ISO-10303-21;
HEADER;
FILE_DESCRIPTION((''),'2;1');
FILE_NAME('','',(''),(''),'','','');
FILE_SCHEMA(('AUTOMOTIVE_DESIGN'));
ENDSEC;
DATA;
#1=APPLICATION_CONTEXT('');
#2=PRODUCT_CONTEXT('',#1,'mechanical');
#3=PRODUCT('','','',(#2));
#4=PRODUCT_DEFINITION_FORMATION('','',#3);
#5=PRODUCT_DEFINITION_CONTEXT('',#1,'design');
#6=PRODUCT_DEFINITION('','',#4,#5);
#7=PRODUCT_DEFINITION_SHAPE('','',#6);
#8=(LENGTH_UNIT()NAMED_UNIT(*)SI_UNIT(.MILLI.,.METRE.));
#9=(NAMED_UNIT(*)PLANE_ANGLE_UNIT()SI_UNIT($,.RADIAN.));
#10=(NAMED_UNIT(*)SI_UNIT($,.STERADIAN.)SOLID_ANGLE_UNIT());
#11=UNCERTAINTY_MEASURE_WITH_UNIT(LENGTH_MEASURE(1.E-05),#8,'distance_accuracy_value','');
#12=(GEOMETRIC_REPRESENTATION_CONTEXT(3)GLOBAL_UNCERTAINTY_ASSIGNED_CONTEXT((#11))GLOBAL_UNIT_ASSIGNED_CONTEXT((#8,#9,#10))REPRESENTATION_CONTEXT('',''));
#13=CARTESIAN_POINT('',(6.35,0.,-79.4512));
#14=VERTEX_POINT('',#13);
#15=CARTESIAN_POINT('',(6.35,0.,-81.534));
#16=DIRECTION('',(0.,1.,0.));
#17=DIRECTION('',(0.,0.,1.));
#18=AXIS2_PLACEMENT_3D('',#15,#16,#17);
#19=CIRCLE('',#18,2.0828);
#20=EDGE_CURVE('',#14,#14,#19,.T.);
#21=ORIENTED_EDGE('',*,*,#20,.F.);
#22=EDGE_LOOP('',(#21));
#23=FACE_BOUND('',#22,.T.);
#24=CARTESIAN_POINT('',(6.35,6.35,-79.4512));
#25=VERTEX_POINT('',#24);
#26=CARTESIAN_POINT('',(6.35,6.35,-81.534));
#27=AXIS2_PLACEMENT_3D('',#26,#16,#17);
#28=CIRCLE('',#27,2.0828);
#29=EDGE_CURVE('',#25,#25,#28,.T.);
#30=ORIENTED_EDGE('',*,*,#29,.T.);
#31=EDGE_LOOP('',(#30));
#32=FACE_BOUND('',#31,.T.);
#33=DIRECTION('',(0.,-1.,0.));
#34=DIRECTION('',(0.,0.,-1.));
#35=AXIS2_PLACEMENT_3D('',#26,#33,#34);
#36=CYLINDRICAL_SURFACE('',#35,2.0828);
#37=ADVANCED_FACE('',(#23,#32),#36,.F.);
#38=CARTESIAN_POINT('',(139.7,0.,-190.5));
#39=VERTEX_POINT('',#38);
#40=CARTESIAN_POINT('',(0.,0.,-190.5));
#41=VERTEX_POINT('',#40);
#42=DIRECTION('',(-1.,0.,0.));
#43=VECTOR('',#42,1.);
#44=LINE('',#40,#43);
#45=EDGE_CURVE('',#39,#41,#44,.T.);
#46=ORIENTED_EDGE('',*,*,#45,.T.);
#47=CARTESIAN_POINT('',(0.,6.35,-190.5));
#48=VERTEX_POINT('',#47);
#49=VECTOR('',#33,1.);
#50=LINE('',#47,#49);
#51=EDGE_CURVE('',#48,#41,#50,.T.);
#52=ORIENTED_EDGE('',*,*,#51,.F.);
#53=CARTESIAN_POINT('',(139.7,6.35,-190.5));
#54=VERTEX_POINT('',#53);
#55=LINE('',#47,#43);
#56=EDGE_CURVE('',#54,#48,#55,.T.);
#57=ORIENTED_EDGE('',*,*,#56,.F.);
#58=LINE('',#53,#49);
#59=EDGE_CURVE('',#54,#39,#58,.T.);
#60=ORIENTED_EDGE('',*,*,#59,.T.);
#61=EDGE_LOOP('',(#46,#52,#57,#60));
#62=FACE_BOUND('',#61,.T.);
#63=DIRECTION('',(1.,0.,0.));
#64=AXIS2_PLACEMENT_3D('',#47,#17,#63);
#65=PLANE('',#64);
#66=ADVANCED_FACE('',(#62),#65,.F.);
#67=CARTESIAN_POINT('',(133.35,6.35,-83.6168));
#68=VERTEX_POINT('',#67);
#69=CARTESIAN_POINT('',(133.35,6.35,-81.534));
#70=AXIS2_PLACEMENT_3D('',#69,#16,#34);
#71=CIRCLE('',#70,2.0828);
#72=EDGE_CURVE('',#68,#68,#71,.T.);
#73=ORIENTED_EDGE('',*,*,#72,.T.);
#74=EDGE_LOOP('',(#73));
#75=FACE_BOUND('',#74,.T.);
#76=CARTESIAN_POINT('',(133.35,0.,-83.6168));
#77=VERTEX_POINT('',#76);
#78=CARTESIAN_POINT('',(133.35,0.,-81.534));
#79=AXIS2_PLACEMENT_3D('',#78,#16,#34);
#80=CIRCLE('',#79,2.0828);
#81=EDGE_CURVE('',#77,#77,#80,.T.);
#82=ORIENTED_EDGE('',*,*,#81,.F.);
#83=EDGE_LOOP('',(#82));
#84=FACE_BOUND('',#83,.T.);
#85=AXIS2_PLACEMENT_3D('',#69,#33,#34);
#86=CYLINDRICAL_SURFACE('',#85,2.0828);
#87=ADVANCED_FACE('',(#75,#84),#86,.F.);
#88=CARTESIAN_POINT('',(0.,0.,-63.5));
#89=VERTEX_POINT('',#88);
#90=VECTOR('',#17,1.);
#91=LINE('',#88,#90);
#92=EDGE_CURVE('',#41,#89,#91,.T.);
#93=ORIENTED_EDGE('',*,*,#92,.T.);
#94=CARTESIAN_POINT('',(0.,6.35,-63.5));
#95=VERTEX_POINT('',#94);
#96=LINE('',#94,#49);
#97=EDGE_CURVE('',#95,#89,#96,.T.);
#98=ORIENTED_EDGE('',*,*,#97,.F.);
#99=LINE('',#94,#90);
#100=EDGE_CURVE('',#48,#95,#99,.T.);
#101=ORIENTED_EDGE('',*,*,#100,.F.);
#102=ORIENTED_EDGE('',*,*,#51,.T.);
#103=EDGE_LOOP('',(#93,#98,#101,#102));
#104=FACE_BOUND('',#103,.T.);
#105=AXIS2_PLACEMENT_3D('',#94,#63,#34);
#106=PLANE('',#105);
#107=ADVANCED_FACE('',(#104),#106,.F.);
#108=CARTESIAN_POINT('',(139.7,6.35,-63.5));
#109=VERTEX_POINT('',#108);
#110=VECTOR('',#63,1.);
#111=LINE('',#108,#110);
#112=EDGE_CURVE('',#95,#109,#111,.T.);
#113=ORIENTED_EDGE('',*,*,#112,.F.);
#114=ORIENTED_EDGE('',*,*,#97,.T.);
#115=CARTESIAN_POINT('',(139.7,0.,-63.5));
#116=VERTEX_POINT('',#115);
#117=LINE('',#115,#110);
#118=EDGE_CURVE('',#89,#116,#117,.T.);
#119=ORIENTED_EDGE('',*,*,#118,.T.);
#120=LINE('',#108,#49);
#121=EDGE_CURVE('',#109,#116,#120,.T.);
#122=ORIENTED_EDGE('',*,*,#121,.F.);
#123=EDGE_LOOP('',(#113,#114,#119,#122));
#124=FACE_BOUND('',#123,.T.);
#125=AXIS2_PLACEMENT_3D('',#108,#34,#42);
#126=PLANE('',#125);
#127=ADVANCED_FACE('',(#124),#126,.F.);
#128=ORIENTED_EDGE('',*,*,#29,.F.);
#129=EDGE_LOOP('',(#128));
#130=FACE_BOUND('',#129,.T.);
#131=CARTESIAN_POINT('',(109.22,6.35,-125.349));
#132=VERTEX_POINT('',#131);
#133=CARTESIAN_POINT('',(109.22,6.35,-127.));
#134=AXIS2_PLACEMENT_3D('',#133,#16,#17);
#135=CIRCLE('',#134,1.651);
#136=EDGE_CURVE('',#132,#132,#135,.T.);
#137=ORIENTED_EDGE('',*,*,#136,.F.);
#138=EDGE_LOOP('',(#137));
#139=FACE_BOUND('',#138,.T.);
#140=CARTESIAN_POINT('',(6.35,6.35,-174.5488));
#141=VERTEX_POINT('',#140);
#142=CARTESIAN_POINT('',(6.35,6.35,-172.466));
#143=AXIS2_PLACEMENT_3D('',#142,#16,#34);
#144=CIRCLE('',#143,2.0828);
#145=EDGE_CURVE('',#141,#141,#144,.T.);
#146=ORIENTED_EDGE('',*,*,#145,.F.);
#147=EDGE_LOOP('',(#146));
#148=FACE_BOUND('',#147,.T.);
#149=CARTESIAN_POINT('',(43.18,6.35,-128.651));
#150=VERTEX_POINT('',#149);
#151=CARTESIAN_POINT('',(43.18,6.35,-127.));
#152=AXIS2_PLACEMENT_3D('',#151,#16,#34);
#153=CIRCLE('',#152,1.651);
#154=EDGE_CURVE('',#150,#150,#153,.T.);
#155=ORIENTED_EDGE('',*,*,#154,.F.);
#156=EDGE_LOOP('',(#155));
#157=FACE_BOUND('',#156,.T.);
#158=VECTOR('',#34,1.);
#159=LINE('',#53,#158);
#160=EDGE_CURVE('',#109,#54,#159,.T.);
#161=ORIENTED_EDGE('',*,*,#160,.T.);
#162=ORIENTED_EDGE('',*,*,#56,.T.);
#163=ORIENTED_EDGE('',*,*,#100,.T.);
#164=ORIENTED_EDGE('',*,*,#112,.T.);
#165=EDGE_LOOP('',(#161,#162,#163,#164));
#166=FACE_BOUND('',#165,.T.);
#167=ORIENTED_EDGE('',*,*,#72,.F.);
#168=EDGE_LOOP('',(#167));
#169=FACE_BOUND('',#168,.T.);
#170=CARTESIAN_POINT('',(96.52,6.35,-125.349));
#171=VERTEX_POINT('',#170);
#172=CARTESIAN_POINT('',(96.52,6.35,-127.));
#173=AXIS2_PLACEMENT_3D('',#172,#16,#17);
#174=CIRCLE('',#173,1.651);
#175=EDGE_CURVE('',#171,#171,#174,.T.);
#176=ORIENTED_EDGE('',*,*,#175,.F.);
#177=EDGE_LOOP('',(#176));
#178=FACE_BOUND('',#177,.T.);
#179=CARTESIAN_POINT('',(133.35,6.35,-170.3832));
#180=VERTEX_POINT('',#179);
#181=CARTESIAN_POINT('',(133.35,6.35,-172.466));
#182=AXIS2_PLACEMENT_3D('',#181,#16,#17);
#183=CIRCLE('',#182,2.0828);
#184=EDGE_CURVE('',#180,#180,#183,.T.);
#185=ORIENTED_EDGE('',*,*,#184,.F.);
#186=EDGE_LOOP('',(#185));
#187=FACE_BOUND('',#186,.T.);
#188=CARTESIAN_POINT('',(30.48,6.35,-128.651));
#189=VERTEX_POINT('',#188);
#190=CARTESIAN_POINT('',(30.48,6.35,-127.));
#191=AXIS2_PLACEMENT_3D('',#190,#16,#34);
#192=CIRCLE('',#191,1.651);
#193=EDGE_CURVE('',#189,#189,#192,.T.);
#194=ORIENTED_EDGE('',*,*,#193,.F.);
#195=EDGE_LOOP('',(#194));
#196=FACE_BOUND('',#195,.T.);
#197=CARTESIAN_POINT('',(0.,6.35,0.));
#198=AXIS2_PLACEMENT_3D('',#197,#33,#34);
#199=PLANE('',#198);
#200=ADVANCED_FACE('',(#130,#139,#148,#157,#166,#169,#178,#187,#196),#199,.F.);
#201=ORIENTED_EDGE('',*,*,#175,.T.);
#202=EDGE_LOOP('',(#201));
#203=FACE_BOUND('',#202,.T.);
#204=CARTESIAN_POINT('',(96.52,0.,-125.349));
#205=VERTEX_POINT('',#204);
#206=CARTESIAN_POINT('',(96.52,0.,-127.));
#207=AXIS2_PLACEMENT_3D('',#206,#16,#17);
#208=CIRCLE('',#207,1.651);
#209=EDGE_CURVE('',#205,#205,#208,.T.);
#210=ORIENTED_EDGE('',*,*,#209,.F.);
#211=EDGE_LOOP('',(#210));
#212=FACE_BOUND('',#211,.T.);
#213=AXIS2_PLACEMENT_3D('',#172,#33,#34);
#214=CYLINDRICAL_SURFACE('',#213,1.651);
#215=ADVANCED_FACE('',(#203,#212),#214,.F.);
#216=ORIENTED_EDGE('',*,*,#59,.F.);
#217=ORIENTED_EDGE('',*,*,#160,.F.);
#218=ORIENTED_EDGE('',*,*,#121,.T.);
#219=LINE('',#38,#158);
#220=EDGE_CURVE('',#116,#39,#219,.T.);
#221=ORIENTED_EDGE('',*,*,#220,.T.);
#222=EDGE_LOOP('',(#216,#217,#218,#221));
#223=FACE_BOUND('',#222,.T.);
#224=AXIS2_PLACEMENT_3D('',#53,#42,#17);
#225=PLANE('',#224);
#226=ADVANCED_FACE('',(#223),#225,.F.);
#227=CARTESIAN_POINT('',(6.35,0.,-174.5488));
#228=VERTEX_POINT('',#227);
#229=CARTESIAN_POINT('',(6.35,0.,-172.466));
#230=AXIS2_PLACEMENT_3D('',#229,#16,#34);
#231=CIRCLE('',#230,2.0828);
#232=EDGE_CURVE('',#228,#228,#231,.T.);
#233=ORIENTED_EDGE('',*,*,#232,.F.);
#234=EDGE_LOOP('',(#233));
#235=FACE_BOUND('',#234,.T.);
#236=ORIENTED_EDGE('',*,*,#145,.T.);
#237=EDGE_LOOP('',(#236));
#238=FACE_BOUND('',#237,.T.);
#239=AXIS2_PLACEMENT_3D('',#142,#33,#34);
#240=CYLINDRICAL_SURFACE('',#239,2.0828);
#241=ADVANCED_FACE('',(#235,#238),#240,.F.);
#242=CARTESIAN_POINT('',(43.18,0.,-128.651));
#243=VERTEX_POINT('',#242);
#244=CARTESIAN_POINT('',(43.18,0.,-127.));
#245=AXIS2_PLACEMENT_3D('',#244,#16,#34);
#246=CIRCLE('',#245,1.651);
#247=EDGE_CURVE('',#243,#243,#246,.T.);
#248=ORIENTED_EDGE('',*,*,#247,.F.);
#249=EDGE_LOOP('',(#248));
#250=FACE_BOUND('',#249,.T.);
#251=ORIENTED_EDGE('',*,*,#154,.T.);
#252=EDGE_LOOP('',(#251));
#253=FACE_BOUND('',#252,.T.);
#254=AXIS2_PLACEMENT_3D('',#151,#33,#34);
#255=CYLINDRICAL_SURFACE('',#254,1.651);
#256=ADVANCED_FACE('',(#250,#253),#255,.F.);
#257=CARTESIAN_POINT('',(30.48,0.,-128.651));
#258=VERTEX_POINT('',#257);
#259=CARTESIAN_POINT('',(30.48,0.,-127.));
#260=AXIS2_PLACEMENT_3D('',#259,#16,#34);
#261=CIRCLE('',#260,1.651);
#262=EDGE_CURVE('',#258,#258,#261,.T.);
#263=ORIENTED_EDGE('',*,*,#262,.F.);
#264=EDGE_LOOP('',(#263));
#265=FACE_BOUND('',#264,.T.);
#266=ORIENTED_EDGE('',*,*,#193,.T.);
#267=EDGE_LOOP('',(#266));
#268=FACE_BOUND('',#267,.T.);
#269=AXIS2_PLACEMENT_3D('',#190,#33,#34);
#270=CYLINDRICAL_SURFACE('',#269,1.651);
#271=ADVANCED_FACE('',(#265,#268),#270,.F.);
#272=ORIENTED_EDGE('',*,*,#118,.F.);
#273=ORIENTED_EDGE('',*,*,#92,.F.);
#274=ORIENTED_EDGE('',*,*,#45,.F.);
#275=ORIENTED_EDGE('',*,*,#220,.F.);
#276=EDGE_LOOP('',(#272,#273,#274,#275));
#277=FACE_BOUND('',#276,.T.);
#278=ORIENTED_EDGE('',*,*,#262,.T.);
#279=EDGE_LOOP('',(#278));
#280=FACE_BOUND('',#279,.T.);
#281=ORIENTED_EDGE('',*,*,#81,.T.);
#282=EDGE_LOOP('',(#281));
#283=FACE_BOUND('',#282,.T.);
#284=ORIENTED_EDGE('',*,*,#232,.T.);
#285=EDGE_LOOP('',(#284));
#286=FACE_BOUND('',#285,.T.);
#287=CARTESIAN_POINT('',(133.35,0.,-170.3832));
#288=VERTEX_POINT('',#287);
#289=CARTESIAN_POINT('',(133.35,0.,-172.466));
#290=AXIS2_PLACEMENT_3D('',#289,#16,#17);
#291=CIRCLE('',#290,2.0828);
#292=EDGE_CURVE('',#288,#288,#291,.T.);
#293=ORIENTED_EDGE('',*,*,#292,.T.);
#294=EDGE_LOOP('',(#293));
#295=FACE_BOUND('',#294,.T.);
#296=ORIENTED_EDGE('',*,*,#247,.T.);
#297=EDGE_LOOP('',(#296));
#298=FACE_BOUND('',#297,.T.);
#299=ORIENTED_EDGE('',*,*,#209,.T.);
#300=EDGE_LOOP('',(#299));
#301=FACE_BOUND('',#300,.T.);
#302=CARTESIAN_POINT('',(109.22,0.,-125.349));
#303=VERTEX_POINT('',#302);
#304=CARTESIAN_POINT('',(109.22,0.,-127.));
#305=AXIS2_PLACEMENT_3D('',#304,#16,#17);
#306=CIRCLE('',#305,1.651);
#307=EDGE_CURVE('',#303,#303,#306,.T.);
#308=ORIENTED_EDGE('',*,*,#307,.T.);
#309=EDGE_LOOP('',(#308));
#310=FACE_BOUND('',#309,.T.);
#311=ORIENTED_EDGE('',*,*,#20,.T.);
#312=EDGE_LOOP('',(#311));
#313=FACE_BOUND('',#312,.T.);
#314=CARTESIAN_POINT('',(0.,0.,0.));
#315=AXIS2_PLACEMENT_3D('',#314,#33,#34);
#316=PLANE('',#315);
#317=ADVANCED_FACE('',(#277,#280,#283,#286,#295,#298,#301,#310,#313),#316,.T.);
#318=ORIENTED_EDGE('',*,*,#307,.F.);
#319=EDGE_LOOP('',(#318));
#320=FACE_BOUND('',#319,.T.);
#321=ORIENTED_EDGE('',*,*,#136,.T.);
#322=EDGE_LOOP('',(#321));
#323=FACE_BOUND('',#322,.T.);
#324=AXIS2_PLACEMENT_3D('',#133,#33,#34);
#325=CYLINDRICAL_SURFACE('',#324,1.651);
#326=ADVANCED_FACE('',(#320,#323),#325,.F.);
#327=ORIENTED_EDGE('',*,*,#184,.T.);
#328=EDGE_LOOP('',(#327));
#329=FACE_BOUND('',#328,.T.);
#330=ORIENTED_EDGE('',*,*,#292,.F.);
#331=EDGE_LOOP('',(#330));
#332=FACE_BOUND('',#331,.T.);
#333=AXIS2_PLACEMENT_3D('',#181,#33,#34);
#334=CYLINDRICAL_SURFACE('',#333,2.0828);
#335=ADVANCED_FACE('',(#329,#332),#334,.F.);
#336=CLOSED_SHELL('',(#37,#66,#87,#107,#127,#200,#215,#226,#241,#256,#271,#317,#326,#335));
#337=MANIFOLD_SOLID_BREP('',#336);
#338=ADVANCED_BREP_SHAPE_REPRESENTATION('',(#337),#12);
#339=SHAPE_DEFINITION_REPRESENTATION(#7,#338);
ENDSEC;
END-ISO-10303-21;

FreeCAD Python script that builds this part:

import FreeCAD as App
import Part
import Sketcher

V = App.Vector
Q = App.Units.Quantity

doc = App.newDocument("Part")
params = doc.addObject("Spreadsheet::Sheet", "Params")
for row, (alias, value) in enumerate([
    ("sketch1_diameter", "0.13 in"),
    ("sketch1_height", "5 in"),
    ("sketch1_diameter2", "0.164 in"),
    ("sketch1_width", "5.5 in"),
    ("pad1_length", "0.25 in"),
], start=1):
    params.set(f"A{row}", alias)
    params.set(f"B{row}", "=" + value)
    params.setAlias(f"B{row}", alias)

body = doc.addObject("PartDesign::Body", "Body")

sketch1 = body.newObject("Sketcher::SketchObject", "Sketch")
sketch1.AttachmentSupport = (doc.getObject("XZ_Plane"), [""])
sketch1.MapMode = "FlatFace"
sketch1.addGeometry([
    Part.LineSegment(V(0, -190.5, 0), V(0, -63.5, 0)),
    Part.LineSegment(V(0, -63.5, 0), V(139.7, -63.5, 0)),
    Part.LineSegment(V(139.7, -63.5, 0), V(139.7, -190.5, 0)),
    Part.LineSegment(V(139.7, -190.5, 0), V(0, -190.5, 0)),
    Part.Circle(V(6.3, -81.5, 0), V(0, 0, 1), 2.1),
    Part.Circle(V(30.5, -127, 0), V(0, 0, 1), 1.7),
    Part.Circle(V(43.2, -127, 0), V(0, 0, 1), 1.7),
    Part.Circle(V(133.3, -81.5, 0), V(0, 0, 1), 2.1),
    Part.Circle(V(96.5, -127, 0), V(0, 0, 1), 1.7),
    Part.Circle(V(109.2, -127, 0), V(0, 0, 1), 1.7),
    Part.Circle(V(6.3, -172.5, 0), V(0, 0, 1), 2.1),
    Part.Circle(V(133.3, -172.5, 0), V(0, 0, 1), 2.1),
], False)
sketch1.addConstraint([
    Sketcher.Constraint("Coincident", 0, 2, 1, 1),
    Sketcher.Constraint("Coincident", 1, 2, 2, 1),
    Sketcher.Constraint("Coincident", 2, 2, 3, 1),
    Sketcher.Constraint("Coincident", 3, 2, 0, 1),
    Sketcher.Constraint("Vertical", 0),
    Sketcher.Constraint("Horizontal", 1),
    Sketcher.Constraint("Vertical", 2),
    Sketcher.Constraint("Horizontal", 3),
    Sketcher.Constraint("Equal", 5, 6),
    Sketcher.Constraint("Equal", 4, 7),
    Sketcher.Constraint("Equal", 6, 8),
    Sketcher.Constraint("Equal", 8, 9),
    Sketcher.Constraint("Equal", 7, 10),
    Sketcher.Constraint("Equal", 10, 11),
    Sketcher.Constraint("PointOnObject", 0, 2, -2),
    Sketcher.Constraint("Horizontal", 5, 3, 6, 3),
    Sketcher.Constraint("Horizontal", 4, 3, 7, 3),
    Sketcher.Constraint("Horizontal", 6, 3, 8, 3),
    Sketcher.Constraint("Horizontal", 8, 3, 9, 3),
    Sketcher.Constraint("Horizontal", 10, 3, 11, 3),
    Sketcher.Constraint("Vertical", 4, 3, 10, 3),
    Sketcher.Constraint("Vertical", 7, 3, 11, 3),
    Sketcher.Constraint("Diameter", 5, Q("0.13 in")),
    Sketcher.Constraint("DistanceY", 0, 1, 0, 2, Q("5 in")),
    Sketcher.Constraint("Diameter", 4, Q("0.164 in")),
    Sketcher.Constraint("DistanceX", 1, 1, 1, 2, Q("5.5 in")),
    Sketcher.Constraint("DistanceY", 5, 3, -1, 1, Q("5 in")),
    Sketcher.Constraint("DistanceX", 4, 3, 7, 3, Q("5 in")),
    Sketcher.Constraint("DistanceX", -1, 1, 5, 3, Q("1.2 in")),
    Sketcher.Constraint("DistanceX", -1, 1, 6, 3, Q("1.7 in")),
    Sketcher.Constraint("DistanceX", -1, 1, 8, 3, Q("3.8 in")),
    Sketcher.Constraint("DistanceX", -1, 1, 9, 3, Q("4.3 in")),
    Sketcher.Constraint("DistanceY", 0, 2, -1, 1, Q("2.5 in")),
    Sketcher.Constraint("DistanceX", -1, 1, 4, 3, Q("0.25 in")),
    Sketcher.Constraint("DistanceY", 4, 3, -1, 1, Q("3.21 in")),
    Sketcher.Constraint("DistanceY", 10, 3, -1, 1, Q("6.79 in")),
])
sketch1.setExpression("Constraints[22]", "Params.sketch1_diameter")
sketch1.setExpression("Constraints[23]", "Params.sketch1_height")
sketch1.setExpression("Constraints[24]", "Params.sketch1_diameter2")
sketch1.setExpression("Constraints[25]", "Params.sketch1_width")
pad1 = body.newObject("PartDesign::Pad", "Pad")
pad1.Profile = sketch1
pad1.setExpression("Length", "Params.pad1_length")
pad1.Reversed = True

doc.recompute()
